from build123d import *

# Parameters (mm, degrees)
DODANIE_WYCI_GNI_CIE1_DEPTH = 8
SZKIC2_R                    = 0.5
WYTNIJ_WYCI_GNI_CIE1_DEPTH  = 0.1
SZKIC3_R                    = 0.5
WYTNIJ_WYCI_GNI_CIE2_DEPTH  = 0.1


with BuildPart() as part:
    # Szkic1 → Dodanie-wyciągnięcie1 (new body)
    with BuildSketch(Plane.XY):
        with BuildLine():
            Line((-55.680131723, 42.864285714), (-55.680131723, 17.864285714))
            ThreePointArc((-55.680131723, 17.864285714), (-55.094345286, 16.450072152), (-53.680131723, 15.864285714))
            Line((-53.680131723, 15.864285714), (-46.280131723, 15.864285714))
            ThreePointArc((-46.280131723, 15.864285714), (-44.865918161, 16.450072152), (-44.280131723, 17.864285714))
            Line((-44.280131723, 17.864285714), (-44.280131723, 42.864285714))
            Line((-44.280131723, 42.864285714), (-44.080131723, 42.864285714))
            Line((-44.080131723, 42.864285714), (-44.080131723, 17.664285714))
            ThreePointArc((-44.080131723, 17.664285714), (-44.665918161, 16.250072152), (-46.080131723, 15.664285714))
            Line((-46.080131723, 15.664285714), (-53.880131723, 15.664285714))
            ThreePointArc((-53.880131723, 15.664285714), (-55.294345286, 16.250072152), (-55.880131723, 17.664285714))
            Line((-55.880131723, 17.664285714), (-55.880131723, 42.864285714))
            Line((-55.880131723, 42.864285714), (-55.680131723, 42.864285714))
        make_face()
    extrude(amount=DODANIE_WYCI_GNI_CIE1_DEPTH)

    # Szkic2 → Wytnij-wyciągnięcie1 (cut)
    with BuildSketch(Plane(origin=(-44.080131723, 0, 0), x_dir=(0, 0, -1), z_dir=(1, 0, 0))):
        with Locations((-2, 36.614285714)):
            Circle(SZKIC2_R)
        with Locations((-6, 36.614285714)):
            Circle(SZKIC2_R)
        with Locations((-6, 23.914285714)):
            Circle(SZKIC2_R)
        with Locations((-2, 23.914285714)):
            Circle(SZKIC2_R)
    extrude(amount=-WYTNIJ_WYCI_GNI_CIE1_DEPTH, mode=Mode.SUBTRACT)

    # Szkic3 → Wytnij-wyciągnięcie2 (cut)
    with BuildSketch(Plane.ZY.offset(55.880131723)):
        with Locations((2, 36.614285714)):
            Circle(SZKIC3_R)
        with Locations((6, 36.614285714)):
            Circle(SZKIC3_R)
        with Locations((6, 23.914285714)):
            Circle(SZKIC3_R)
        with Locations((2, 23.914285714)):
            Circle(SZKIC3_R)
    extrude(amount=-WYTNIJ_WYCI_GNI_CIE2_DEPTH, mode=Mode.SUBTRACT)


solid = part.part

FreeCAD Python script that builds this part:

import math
import FreeCAD as App
import Part
import Sketcher

V = App.Vector

doc = App.newDocument("Part")
body = doc.addObject("PartDesign::Body", "Body")

sketch1 = body.newObject("Sketcher::SketchObject", "Sketch")
sketch1.AttachmentSupport = (doc.getObject("XY_Plane"), [""])
sketch1.MapMode = "FlatFace"
sketch1.addGeometry([
    Part.LineSegment(V(-55.68, 17.86, 0), V(-55.68, 42.86, 0)),
    Part.LineSegment(V(-55.68, 42.86, 0), V(-55.88, 42.86, 0)),
    Part.LineSegment(V(-55.88, 42.86, 0), V(-55.88, 17.66, 0)),
    Part.ArcOfCircle(Part.Circle(V(-53.88, 17.66, 0), V(0, 0, 1), 2), math.radians(180), math.radians(270)),
    Part.LineSegment(V(-53.88, 15.66, 0), V(-46.08, 15.66, 0)),
    Part.ArcOfCircle(Part.Circle(V(-46.08, 17.66, 0), V(0, 0, 1), 2), math.radians(-90), math.radians(0)),
    Part.LineSegment(V(-44.08, 17.66, 0), V(-44.08, 42.86, 0)),
    Part.LineSegment(V(-44.08, 42.86, 0), V(-44.28, 42.86, 0)),
    Part.LineSegment(V(-44.28, 42.86, 0), V(-44.28, 17.86, 0)),
    Part.ArcOfCircle(Part.Circle(V(-46.28, 17.86, 0), V(0, 0, 1), 2), math.radians(-90), math.radians(0)),
    Part.LineSegment(V(-46.28, 15.86, 0), V(-53.68, 15.86, 0)),
    Part.ArcOfCircle(Part.Circle(V(-53.68, 17.86, 0), V(0, 0, 1), 2), math.radians(180), math.radians(270)),
], False)
sketch1.addConstraint([
    Sketcher.Constraint("Coincident", 0, 2, 1, 1),
    Sketcher.Constraint("Coincident", 1, 2, 2, 1),
    Sketcher.Constraint("Tangent", 2, 2, 3, 1),
    Sketcher.Constraint("Tangent", 3, 2, 4, 1),
    Sketcher.Constraint("Tangent", 4, 2, 5, 1),
    Sketcher.Constraint("Tangent", 5, 2, 6, 1),
    Sketcher.Constraint("Coincident", 6, 2, 7, 1),
    Sketcher.Constraint("Coincident", 7, 2, 8, 1),
    Sketcher.Constraint("Tangent", 8, 2, 9, 2),
    Sketcher.Constraint("Tangent", 9, 1, 10, 1),
    Sketcher.Constraint("Tangent", 10, 2, 11, 2),
    Sketcher.Constraint("Tangent", 11, 1, 0, 1),
    Sketcher.Constraint("Vertical", 0),
    Sketcher.Constraint("Horizontal", 1),
    Sketcher.Constraint("Vertical", 2),
    Sketcher.Constraint("Horizontal", 4),
    Sketcher.Constraint("Vertical", 6),
    Sketcher.Constraint("Horizontal", 7),
    Sketcher.Constraint("Vertical", 8),
    Sketcher.Constraint("Horizontal", 10),
    Sketcher.Constraint("Equal", 3, 5),
    Sketcher.Constraint("Equal", 5, 9),
    Sketcher.Constraint("Equal", 9, 11),
    Sketcher.Constraint("Horizontal", 1, 2, 6, 2),
    Sketcher.Constraint("Equal", 1, 7),
    Sketcher.Constraint("Radius", 3, 2.0),
    Sketcher.Constraint("DistanceY", 0, 1, 0, 2, 25.0),
    Sketcher.Constraint("DistanceX", 1, 2, 1, 1, 0.2),
    Sketcher.Constraint("DistanceX", 4, 1, 4, 2, 7.8),
    Sketcher.Constraint("DistanceY", 2, 2, 2, 1, 25.2),
    Sketcher.Constraint("DistanceX", 3, 3, -1, 1, 53.880132),
    Sketcher.Constraint("DistanceY", -1, 1, 3, 3, 17.664286),
])
pad1 = body.newObject("PartDesign::Pad", "Pad")
pad1.Profile = sketch1
pad1.Length = 8

sketch2 = body.newObject("Sketcher::SketchObject", "Sketch001")
sketch2.AttachmentSupport = (doc.getObject("YZ_Plane"), [""])
sketch2.MapMode = "FlatFace"
sketch2.AttachmentOffset = App.Placement(V(0, 0, -44.080132), App.Rotation())
sketch2.addGeometry([
    Part.Circle(V(36.6, 2, 0), V(0, 0, 1), 0.5),
    Part.Circle(V(36.6, 6, 0), V(0, 0, 1), 0.5),
    Part.Circle(V(23.9, 6, 0), V(0, 0, 1), 0.5),
    Part.Circle(V(23.9, 2, 0), V(0, 0, 1), 0.5),
], False)
sketch2.addConstraint([
    Sketcher.Constraint("Equal", 0, 1),
    Sketcher.Constraint("Equal", 1, 2),
    Sketcher.Constraint("Equal", 2, 3),
    Sketcher.Constraint("Horizontal", 1, 3, 2, 3),
    Sketcher.Constraint("Horizontal", 0, 3, 3, 3),
    Sketcher.Constraint("Vertical", 0, 3, 1, 3),
    Sketcher.Constraint("Vertical", 2, 3, 3, 3),
    Sketcher.Constraint("Diameter", 0, 1.0),
    Sketcher.Constraint("DistanceY", -1, 1, 0, 3, 2.0),
    Sketcher.Constraint("DistanceY", -1, 1, 1, 3, 6.0),
    Sketcher.Constraint("DistanceX", 2, 3, 1, 3, 12.7),
    Sketcher.Constraint("DistanceX", -1, 1, 0, 3, 36.614286),
])
pocket1 = body.newObject("PartDesign::Pocket", "Pocket")
pocket1.Profile = sketch2
pocket1.Length = 0.1

sketch3 = body.newObject("Sketcher::SketchObject", "Sketch002")
sketch3.AttachmentSupport = (doc.getObject("YZ_Plane"), [""])
sketch3.MapMode = "FlatFace"
sketch3.AttachmentOffset = App.Placement(V(0, 0, -55.880132), App.Rotation())
sketch3.addGeometry([
    Part.Circle(V(36.6, 2, 0), V(0, 0, 1), 0.5),
    Part.Circle(V(36.6, 6, 0), V(0, 0, 1), 0.5),
    Part.Circle(V(23.9, 6, 0), V(0, 0, 1), 0.5),
    Part.Circle(V(23.9, 2, 0), V(0, 0, 1), 0.5),
], False)
sketch3.addConstraint([
    Sketcher.Constraint("Equal", 0, 1),
    Sketcher.Constraint("Equal", 1, 2),
    Sketcher.Constraint("Equal", 2, 3),
    Sketcher.Constraint("Horizontal", 1, 3, 2, 3),
    Sketcher.Constraint("Horizontal", 0, 3, 3, 3),
    Sketcher.Constraint("Vertical", 0, 3, 1, 3),
    Sketcher.Constraint("Vertical", 2, 3, 3, 3),
    Sketcher.Constraint("Diameter", 0, 1.0),
    Sketcher.Constraint("DistanceY", -1, 1, 0, 3, 2.0),
    Sketcher.Constraint("DistanceY", -1, 1, 1, 3, 6.0),
    Sketcher.Constraint("DistanceX", 2, 3, 1, 3, 12.7),
    Sketcher.Constraint("DistanceX", -1, 1, 0, 3, 36.614286),
])
pocket2 = body.newObject("PartDesign::Pocket", "Pocket001")
pocket2.Profile = sketch3
pocket2.Length = 0.1
pocket2.Reversed = True

doc.recompute()
